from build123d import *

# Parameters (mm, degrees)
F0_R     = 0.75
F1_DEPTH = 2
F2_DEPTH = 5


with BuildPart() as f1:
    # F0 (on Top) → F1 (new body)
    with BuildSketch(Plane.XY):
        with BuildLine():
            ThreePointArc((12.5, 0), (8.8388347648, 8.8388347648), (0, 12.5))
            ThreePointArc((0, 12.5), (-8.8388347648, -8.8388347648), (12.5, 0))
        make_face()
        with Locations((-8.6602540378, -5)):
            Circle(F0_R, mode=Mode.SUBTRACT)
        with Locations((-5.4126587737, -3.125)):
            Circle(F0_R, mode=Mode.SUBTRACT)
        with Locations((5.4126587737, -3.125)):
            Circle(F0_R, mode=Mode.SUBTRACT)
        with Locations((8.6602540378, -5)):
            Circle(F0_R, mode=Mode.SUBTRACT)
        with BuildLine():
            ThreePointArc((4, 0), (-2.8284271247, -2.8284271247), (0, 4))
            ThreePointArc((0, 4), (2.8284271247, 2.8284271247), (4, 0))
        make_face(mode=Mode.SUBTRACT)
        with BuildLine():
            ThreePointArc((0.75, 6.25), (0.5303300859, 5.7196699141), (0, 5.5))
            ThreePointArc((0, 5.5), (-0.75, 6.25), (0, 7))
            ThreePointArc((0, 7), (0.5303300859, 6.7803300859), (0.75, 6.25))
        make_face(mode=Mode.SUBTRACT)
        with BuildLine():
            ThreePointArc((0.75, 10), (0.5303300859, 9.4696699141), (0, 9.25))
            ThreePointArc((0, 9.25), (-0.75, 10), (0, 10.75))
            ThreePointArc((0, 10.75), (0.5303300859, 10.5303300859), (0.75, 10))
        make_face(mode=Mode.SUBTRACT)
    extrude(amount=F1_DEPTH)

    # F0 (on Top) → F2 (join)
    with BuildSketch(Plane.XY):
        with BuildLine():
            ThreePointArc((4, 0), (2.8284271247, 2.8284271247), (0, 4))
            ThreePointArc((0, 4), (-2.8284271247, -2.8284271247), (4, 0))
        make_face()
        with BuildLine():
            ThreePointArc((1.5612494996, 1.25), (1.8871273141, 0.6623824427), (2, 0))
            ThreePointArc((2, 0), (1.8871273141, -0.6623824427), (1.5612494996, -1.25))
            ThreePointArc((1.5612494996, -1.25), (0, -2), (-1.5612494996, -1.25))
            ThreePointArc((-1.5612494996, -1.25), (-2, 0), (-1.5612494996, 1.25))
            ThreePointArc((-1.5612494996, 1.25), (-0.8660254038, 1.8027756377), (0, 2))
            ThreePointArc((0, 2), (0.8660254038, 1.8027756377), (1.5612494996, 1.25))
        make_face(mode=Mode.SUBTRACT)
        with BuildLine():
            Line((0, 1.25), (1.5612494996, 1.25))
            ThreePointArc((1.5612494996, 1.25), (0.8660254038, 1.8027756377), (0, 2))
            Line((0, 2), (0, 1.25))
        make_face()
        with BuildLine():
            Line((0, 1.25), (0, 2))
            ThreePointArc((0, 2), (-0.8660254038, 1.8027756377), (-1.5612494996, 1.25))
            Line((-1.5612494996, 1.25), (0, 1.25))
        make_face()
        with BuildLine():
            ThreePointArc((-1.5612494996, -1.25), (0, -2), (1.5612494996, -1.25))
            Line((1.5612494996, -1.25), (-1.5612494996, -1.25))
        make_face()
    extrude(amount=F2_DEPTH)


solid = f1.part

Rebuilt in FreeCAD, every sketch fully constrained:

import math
import FreeCAD as App
import Part
import Sketcher
from FreeCAD import Vector

doc = App.newDocument("Part")
params = doc.addObject("Spreadsheet::Sheet", "Params")
for row, (alias, value) in enumerate([
    ("sketch1_radius", "4 mm"),
    ("sketch1_diameter", "1.5 mm"),
    ("sketch1_radius2", "12.5 mm"),
    ("pad1_length", "2 mm"),
    ("sketch2_radius", "4 mm"),
    ("sketch2_radius2", "2 mm"),
    ("pad2_length", "5 mm"),
], start=1):
    params.set(f"A{row}", alias)
    params.set(f"B{row}", "=" + value)
    params.setAlias(f"B{row}", alias)

body = doc.addObject("PartDesign::Body", "Body")

sketch1 = body.newObject("Sketcher::SketchObject", "Sketch")
sketch1.AttachmentSupport = (doc.getObject("XY_Plane"), [""])
sketch1.MapMode = "FlatFace"
sketch1.addGeometry(Part.ArcOfCircle(Part.Circle(Vector(0, 0, 0), Vector(0, 0, 1), 12.5), math.radians(0), math.radians(90)), False)
sketch1.addGeometry(Part.ArcOfCircle(Part.Circle(Vector(0, 0, 0), Vector(0, 0, 1), 12.5), math.radians(90), math.radians(360)), False)
sketch1.addGeometry(Part.Circle(Vector(-8.660254, -5, 0), Vector(0, 0, 1), 0.75), False)
sketch1.addGeometry(Part.Circle(Vector(-5.412659, -3.125, 0), Vector(0, 0, 1), 0.75), False)
sketch1.addGeometry(Part.Circle(Vector(8.660254, -5, 0), Vector(0, 0, 1), 0.75), False)
sketch1.addGeometry(Part.Circle(Vector(5.412659, -3.125, 0), Vector(0, 0, 1), 0.75), False)
sketch1.addGeometry(Part.ArcOfCircle(Part.Circle(Vector(0, 0, 0), Vector(0, 0, 1), 4), math.radians(0), math.radians(90)), False)
sketch1.addGeometry(Part.ArcOfCircle(Part.Circle(Vector(0, 0, 0), Vector(0, 0, 1), 4), math.radians(90), math.radians(360)), False)
sketch1.addGeometry(Part.ArcOfCircle(Part.Circle(Vector(0, 6.25, 0), Vector(0, 0, 1), 0.75), math.radians(0), math.radians(90)), False)
sketch1.addGeometry(Part.ArcOfCircle(Part.Circle(Vector(0, 6.25, 0), Vector(0, 0, 1), 0.75), math.radians(-90), math.radians(0)), False)
sketch1.addGeometry(Part.ArcOfCircle(Part.Circle(Vector(0, 6.25, 0), Vector(0, 0, 1), 0.75), math.radians(90), math.radians(270)), False)
sketch1.addGeometry(Part.ArcOfCircle(Part.Circle(Vector(0, 10, 0), Vector(0, 0, 1), 0.75), math.radians(0), math.radians(90)), False)
sketch1.addGeometry(Part.ArcOfCircle(Part.Circle(Vector(0, 10, 0), Vector(0, 0, 1), 0.75), math.radians(-90), math.radians(0)), False)
sketch1.addGeometry(Part.ArcOfCircle(Part.Circle(Vector(0, 10, 0), Vector(0, 0, 1), 0.75), math.radians(90), math.radians(270)), False)
sketch1.addConstraint(Sketcher.Constraint("Tangent", 0, 1, 1, 2))
sketch1.addConstraint(Sketcher.Constraint("Coincident", 1, 1, 0, 2))
sketch1.addConstraint(Sketcher.Constraint("Tangent", 6, 1, 7, 2))
sketch1.addConstraint(Sketcher.Constraint("Coincident", 7, 1, 6, 2))
sketch1.addConstraint(Sketcher.Constraint("Tangent", 8, 1, 9, 2))
sketch1.addConstraint(Sketcher.Constraint("Tangent", 9, 1, 10, 2))
sketch1.addConstraint(Sketcher.Constraint("Tangent", 10, 1, 8, 2))
sketch1.addConstraint(Sketcher.Constraint("Tangent", 11, 1, 12, 2))
sketch1.addConstraint(Sketcher.Constraint("Tangent", 12, 1, 13, 2))
sketch1.addConstraint(Sketcher.Constraint("Tangent", 13, 1, 11, 2))
sketch1.addConstraint(Sketcher.Constraint("Coincident", 0, 3, -1, 1))
sketch1.addConstraint(Sketcher.Constraint("Coincident", 6, 3, -1, 1))
sketch1.addConstraint(Sketcher.Constraint("Equal", 2, 3))
sketch1.addConstraint(Sketcher.Constraint("Equal", 3, 4))
sketch1.addConstraint(Sketcher.Constraint("Equal", 4, 5))
sketch1.addConstraint(Sketcher.Constraint("Equal", 5, 8))
sketch1.addConstraint(Sketcher.Constraint("Equal", 10, 11))
sketch1.addConstraint(Sketcher.Constraint("Symmetric", 2, 3, 4, 3, -2))
sketch1.addConstraint(Sketcher.Constraint("Symmetric", 3, 3, 5, 3, -2))
sketch1.addConstraint(Sketcher.Constraint("PointOnObject", 8, 3, -2))
sketch1.addConstraint(Sketcher.Constraint("PointOnObject", 11, 3, -2))
sketch1.addConstraint(Sketcher.Constraint("PointOnObject", 0, 1, -1))
sketch1.addConstraint(Sketcher.Constraint("PointOnObject", 1, 1, -2))
sketch1.addConstraint(Sketcher.Constraint("PointOnObject", 6, 1, -1))
sketch1.addConstraint(Sketcher.Constraint("PointOnObject", 7, 1, -2))
sketch1.addConstraint(Sketcher.Constraint("PointOnObject", 9, 1, -2))
sketch1.addConstraint(Sketcher.Constraint("PointOnObject", 10, 1, -2))
sketch1.addConstraint(Sketcher.Constraint("PointOnObject", 12, 1, -2))
sketch1.addConstraint(Sketcher.Constraint("PointOnObject", 13, 1, -2))
sketch1.addConstraint(Sketcher.Constraint("Horizontal", 10, 3, 8, 1))
sketch1.addConstraint(Sketcher.Constraint("Horizontal", 13, 3, 11, 1))
sketch1.addConstraint(Sketcher.Constraint("Radius", 6, 4.0))
sketch1.addConstraint(Sketcher.Constraint("Diameter", 2, 1.5))
sketch1.addConstraint(Sketcher.Constraint("Radius", 0, 12.5))
sketch1.addConstraint(Sketcher.Constraint("DistanceY", 2, 3, -1, 1, 5.0))
sketch1.addConstraint(Sketcher.Constraint("DistanceY", -1, 1, 11, 3, 10.0))
sketch1.addConstraint(Sketcher.Constraint("DistanceY", -1, 1, 10, 1, 7.0))
sketch1.addConstraint(Sketcher.Constraint("DistanceY", 3, 3, -1, 1, 3.125))
sketch1.addConstraint(Sketcher.Constraint("DistanceX", 3, 3, -1, 1, 5.412659))
sketch1.addConstraint(Sketcher.Constraint("DistanceX", 2, 3, 4, 3, 17.320508))
sketch1.setExpression("Constraints[31]", "Params.sketch1_radius")
sketch1.setExpression("Constraints[32]", "Params.sketch1_diameter")
sketch1.setExpression("Constraints[33]", "Params.sketch1_radius2")
pad1 = body.newObject("PartDesign::Pad", "Pad")
pad1.Profile = sketch1
pad1.setExpression("Length", "Params.pad1_length")

sketch2 = body.newObject("Sketcher::SketchObject", "Sketch001")
sketch2.AttachmentSupport = (doc.getObject("XY_Plane"), [""])
sketch2.MapMode = "FlatFace"
sketch2.addGeometry(Part.ArcOfCircle(Part.Circle(Vector(0, 0, 0), Vector(0, 0, 1), 4), math.radians(0), math.radians(90)), False)
sketch2.addGeometry(Part.ArcOfCircle(Part.Circle(Vector(0, 0, 0), Vector(0, 0, 1), 4), math.radians(90), math.radians(360)), False)
sketch2.addGeometry(Part.ArcOfCircle(Part.Circle(Vector(0, 0, 0), Vector(0, 0, 1), 2), math.radians(0), math.radians(38.682187)), False)
sketch2.addGeometry(Part.ArcOfCircle(Part.Circle(Vector(0, 0, 0), Vector(0, 0, 1), 2), math.radians(-38.682187), math.radians(0)), False)
sketch2.addGeometry(Part.LineSegment(Vector(1.561249, -1.25, 0), Vector(-1.561249, -1.25, 0)), False)
sketch2.addGeometry(Part.ArcOfCircle(Part.Circle(Vector(0, 0, 0), Vector(0, 0, 1), 2), math.radians(141.317813), math.radians(218.682187)), False)
sketch2.addGeometry(Part.LineSegment(Vector(-1.561249, 1.25, 0), Vector(1.561249, 1.25, 0)), False)
sketch2.addConstraint(Sketcher.Constraint("Tangent", 0, 1, 1, 2))
sketch2.addConstraint(Sketcher.Constraint("Coincident", 1, 1, 0, 2))
sketch2.addConstraint(Sketcher.Constraint("Tangent", 2, 1, 3, 2))
sketch2.addConstraint(Sketcher.Constraint("Coincident", 3, 1, 4, 1))
sketch2.addConstraint(Sketcher.Constraint("Coincident", 4, 2, 5, 2))
sketch2.addConstraint(Sketcher.Constraint("Coincident", 5, 1, 6, 1))
sketch2.addConstraint(Sketcher.Constraint("Coincident", 6, 2, 2, 2))
sketch2.addConstraint(Sketcher.Constraint("Horizontal", 4))
sketch2.addConstraint(Sketcher.Constraint("Horizontal", 6))
sketch2.addConstraint(Sketcher.Constraint("Coincident", 0, 3, -1, 1))
sketch2.addConstraint(Sketcher.Constraint("Coincident", 2, 3, -1, 1))
sketch2.addConstraint(Sketcher.Constraint("Coincident", 5, 3, -1, 1))
sketch2.addConstraint(Sketcher.Constraint("Equal", 2, 3))
sketch2.addConstraint(Sketcher.Constraint("Equal", 3, 5))
sketch2.addConstraint(Sketcher.Constraint("PointOnObject", 0, 1, -1))
sketch2.addConstraint(Sketcher.Constraint("PointOnObject", 1, 1, -2))
sketch2.addConstraint(Sketcher.Constraint("PointOnObject", 2, 1, -1))
sketch2.addConstraint(Sketcher.Constraint("Vertical", 4, 2, 5, 1))
sketch2.addConstraint(Sketcher.Constraint("Radius", 0, 4.0))
sketch2.addConstraint(Sketcher.Constraint("Radius", 2, 2.0))
sketch2.addConstraint(Sketcher.Constraint("DistanceY", 3, 1, -1, 1, 1.25))
sketch2.setExpression("Constraints[18]", "Params.sketch2_radius")
sketch2.setExpression("Constraints[19]", "Params.sketch2_radius2")
pad2 = body.newObject("PartDesign::Pad", "Pad001")
pad2.Profile = sketch2
pad2.setExpression("Length", "Params.pad2_length")

doc.recompute()
